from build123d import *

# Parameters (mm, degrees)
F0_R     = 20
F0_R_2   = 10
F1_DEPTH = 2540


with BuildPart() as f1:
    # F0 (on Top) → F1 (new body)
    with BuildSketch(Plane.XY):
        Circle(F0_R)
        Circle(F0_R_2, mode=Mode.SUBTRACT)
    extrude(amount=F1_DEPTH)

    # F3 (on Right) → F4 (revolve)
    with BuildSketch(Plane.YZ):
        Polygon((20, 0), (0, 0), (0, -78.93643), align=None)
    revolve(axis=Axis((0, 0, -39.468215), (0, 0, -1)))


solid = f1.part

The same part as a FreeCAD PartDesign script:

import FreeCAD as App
import Part
import Sketcher

doc = App.newDocument("Part")
body = doc.addObject("PartDesign::Body", "Body")

# Sketch on XY plane
sketch1 = body.newObject("Sketcher::SketchObject", "Sketch")
sketch1.AttachmentSupport = (doc.getObject("XY_Plane"), [""])
sketch1.MapMode = "FlatFace"
sketch1.addGeometry([
    Part.Circle(App.Vector(0, 0, 0), App.Vector(0, 0, 1), 20),
    Part.Circle(App.Vector(0, 0, 0), App.Vector(0, 0, 1), 10),
], False)
sketch1.addConstraint([
    Sketcher.Constraint("Coincident", 0, 3, -1, 1),
    Sketcher.Constraint("Coincident", 1, 3, -1, 1),
    Sketcher.Constraint("Diameter", 0, 40.0),
    Sketcher.Constraint("Diameter", 1, 20.0),
])
pad1 = body.newObject("PartDesign::Pad", "Pad")
pad1.Profile = sketch1
pad1.Length = 2540

# Sketch on YZ plane
sketch2 = body.newObject("Sketcher::SketchObject", "Sketch001")
sketch2.AttachmentSupport = (doc.getObject("YZ_Plane"), [""])
sketch2.MapMode = "FlatFace"
sketch2.addGeometry([
    Part.LineSegment(App.Vector(20, 0, 0), App.Vector(0, 0, 0)),
    Part.LineSegment(App.Vector(0, 0, 0), App.Vector(0, -79, 0)),
    Part.LineSegment(App.Vector(0, -79, 0), App.Vector(20, 0, 0)),
], False)
sketch2.addConstraint([
    Sketcher.Constraint("Coincident", 0, 2, 1, 1),
    Sketcher.Constraint("Coincident", 1, 2, 2, 1),
    Sketcher.Constraint("Coincident", 2, 2, 0, 1),
    Sketcher.Constraint("Horizontal", 0),
    Sketcher.Constraint("Vertical", 1),
    Sketcher.Constraint("Coincident", 0, 2, -1, 1),
    Sketcher.Constraint("DistanceX", 0, 2, 0, 1, 20.0),
    Sketcher.Constraint("DistanceY", 1, 2, 1, 1, 78.93643),
])
revolution = body.newObject("PartDesign::Revolution", "Revolution")
revolution.Profile = sketch2
revolution.ReferenceAxis = (sketch2, ["V_Axis"])
revolution.Angle = 360

doc.recompute()
